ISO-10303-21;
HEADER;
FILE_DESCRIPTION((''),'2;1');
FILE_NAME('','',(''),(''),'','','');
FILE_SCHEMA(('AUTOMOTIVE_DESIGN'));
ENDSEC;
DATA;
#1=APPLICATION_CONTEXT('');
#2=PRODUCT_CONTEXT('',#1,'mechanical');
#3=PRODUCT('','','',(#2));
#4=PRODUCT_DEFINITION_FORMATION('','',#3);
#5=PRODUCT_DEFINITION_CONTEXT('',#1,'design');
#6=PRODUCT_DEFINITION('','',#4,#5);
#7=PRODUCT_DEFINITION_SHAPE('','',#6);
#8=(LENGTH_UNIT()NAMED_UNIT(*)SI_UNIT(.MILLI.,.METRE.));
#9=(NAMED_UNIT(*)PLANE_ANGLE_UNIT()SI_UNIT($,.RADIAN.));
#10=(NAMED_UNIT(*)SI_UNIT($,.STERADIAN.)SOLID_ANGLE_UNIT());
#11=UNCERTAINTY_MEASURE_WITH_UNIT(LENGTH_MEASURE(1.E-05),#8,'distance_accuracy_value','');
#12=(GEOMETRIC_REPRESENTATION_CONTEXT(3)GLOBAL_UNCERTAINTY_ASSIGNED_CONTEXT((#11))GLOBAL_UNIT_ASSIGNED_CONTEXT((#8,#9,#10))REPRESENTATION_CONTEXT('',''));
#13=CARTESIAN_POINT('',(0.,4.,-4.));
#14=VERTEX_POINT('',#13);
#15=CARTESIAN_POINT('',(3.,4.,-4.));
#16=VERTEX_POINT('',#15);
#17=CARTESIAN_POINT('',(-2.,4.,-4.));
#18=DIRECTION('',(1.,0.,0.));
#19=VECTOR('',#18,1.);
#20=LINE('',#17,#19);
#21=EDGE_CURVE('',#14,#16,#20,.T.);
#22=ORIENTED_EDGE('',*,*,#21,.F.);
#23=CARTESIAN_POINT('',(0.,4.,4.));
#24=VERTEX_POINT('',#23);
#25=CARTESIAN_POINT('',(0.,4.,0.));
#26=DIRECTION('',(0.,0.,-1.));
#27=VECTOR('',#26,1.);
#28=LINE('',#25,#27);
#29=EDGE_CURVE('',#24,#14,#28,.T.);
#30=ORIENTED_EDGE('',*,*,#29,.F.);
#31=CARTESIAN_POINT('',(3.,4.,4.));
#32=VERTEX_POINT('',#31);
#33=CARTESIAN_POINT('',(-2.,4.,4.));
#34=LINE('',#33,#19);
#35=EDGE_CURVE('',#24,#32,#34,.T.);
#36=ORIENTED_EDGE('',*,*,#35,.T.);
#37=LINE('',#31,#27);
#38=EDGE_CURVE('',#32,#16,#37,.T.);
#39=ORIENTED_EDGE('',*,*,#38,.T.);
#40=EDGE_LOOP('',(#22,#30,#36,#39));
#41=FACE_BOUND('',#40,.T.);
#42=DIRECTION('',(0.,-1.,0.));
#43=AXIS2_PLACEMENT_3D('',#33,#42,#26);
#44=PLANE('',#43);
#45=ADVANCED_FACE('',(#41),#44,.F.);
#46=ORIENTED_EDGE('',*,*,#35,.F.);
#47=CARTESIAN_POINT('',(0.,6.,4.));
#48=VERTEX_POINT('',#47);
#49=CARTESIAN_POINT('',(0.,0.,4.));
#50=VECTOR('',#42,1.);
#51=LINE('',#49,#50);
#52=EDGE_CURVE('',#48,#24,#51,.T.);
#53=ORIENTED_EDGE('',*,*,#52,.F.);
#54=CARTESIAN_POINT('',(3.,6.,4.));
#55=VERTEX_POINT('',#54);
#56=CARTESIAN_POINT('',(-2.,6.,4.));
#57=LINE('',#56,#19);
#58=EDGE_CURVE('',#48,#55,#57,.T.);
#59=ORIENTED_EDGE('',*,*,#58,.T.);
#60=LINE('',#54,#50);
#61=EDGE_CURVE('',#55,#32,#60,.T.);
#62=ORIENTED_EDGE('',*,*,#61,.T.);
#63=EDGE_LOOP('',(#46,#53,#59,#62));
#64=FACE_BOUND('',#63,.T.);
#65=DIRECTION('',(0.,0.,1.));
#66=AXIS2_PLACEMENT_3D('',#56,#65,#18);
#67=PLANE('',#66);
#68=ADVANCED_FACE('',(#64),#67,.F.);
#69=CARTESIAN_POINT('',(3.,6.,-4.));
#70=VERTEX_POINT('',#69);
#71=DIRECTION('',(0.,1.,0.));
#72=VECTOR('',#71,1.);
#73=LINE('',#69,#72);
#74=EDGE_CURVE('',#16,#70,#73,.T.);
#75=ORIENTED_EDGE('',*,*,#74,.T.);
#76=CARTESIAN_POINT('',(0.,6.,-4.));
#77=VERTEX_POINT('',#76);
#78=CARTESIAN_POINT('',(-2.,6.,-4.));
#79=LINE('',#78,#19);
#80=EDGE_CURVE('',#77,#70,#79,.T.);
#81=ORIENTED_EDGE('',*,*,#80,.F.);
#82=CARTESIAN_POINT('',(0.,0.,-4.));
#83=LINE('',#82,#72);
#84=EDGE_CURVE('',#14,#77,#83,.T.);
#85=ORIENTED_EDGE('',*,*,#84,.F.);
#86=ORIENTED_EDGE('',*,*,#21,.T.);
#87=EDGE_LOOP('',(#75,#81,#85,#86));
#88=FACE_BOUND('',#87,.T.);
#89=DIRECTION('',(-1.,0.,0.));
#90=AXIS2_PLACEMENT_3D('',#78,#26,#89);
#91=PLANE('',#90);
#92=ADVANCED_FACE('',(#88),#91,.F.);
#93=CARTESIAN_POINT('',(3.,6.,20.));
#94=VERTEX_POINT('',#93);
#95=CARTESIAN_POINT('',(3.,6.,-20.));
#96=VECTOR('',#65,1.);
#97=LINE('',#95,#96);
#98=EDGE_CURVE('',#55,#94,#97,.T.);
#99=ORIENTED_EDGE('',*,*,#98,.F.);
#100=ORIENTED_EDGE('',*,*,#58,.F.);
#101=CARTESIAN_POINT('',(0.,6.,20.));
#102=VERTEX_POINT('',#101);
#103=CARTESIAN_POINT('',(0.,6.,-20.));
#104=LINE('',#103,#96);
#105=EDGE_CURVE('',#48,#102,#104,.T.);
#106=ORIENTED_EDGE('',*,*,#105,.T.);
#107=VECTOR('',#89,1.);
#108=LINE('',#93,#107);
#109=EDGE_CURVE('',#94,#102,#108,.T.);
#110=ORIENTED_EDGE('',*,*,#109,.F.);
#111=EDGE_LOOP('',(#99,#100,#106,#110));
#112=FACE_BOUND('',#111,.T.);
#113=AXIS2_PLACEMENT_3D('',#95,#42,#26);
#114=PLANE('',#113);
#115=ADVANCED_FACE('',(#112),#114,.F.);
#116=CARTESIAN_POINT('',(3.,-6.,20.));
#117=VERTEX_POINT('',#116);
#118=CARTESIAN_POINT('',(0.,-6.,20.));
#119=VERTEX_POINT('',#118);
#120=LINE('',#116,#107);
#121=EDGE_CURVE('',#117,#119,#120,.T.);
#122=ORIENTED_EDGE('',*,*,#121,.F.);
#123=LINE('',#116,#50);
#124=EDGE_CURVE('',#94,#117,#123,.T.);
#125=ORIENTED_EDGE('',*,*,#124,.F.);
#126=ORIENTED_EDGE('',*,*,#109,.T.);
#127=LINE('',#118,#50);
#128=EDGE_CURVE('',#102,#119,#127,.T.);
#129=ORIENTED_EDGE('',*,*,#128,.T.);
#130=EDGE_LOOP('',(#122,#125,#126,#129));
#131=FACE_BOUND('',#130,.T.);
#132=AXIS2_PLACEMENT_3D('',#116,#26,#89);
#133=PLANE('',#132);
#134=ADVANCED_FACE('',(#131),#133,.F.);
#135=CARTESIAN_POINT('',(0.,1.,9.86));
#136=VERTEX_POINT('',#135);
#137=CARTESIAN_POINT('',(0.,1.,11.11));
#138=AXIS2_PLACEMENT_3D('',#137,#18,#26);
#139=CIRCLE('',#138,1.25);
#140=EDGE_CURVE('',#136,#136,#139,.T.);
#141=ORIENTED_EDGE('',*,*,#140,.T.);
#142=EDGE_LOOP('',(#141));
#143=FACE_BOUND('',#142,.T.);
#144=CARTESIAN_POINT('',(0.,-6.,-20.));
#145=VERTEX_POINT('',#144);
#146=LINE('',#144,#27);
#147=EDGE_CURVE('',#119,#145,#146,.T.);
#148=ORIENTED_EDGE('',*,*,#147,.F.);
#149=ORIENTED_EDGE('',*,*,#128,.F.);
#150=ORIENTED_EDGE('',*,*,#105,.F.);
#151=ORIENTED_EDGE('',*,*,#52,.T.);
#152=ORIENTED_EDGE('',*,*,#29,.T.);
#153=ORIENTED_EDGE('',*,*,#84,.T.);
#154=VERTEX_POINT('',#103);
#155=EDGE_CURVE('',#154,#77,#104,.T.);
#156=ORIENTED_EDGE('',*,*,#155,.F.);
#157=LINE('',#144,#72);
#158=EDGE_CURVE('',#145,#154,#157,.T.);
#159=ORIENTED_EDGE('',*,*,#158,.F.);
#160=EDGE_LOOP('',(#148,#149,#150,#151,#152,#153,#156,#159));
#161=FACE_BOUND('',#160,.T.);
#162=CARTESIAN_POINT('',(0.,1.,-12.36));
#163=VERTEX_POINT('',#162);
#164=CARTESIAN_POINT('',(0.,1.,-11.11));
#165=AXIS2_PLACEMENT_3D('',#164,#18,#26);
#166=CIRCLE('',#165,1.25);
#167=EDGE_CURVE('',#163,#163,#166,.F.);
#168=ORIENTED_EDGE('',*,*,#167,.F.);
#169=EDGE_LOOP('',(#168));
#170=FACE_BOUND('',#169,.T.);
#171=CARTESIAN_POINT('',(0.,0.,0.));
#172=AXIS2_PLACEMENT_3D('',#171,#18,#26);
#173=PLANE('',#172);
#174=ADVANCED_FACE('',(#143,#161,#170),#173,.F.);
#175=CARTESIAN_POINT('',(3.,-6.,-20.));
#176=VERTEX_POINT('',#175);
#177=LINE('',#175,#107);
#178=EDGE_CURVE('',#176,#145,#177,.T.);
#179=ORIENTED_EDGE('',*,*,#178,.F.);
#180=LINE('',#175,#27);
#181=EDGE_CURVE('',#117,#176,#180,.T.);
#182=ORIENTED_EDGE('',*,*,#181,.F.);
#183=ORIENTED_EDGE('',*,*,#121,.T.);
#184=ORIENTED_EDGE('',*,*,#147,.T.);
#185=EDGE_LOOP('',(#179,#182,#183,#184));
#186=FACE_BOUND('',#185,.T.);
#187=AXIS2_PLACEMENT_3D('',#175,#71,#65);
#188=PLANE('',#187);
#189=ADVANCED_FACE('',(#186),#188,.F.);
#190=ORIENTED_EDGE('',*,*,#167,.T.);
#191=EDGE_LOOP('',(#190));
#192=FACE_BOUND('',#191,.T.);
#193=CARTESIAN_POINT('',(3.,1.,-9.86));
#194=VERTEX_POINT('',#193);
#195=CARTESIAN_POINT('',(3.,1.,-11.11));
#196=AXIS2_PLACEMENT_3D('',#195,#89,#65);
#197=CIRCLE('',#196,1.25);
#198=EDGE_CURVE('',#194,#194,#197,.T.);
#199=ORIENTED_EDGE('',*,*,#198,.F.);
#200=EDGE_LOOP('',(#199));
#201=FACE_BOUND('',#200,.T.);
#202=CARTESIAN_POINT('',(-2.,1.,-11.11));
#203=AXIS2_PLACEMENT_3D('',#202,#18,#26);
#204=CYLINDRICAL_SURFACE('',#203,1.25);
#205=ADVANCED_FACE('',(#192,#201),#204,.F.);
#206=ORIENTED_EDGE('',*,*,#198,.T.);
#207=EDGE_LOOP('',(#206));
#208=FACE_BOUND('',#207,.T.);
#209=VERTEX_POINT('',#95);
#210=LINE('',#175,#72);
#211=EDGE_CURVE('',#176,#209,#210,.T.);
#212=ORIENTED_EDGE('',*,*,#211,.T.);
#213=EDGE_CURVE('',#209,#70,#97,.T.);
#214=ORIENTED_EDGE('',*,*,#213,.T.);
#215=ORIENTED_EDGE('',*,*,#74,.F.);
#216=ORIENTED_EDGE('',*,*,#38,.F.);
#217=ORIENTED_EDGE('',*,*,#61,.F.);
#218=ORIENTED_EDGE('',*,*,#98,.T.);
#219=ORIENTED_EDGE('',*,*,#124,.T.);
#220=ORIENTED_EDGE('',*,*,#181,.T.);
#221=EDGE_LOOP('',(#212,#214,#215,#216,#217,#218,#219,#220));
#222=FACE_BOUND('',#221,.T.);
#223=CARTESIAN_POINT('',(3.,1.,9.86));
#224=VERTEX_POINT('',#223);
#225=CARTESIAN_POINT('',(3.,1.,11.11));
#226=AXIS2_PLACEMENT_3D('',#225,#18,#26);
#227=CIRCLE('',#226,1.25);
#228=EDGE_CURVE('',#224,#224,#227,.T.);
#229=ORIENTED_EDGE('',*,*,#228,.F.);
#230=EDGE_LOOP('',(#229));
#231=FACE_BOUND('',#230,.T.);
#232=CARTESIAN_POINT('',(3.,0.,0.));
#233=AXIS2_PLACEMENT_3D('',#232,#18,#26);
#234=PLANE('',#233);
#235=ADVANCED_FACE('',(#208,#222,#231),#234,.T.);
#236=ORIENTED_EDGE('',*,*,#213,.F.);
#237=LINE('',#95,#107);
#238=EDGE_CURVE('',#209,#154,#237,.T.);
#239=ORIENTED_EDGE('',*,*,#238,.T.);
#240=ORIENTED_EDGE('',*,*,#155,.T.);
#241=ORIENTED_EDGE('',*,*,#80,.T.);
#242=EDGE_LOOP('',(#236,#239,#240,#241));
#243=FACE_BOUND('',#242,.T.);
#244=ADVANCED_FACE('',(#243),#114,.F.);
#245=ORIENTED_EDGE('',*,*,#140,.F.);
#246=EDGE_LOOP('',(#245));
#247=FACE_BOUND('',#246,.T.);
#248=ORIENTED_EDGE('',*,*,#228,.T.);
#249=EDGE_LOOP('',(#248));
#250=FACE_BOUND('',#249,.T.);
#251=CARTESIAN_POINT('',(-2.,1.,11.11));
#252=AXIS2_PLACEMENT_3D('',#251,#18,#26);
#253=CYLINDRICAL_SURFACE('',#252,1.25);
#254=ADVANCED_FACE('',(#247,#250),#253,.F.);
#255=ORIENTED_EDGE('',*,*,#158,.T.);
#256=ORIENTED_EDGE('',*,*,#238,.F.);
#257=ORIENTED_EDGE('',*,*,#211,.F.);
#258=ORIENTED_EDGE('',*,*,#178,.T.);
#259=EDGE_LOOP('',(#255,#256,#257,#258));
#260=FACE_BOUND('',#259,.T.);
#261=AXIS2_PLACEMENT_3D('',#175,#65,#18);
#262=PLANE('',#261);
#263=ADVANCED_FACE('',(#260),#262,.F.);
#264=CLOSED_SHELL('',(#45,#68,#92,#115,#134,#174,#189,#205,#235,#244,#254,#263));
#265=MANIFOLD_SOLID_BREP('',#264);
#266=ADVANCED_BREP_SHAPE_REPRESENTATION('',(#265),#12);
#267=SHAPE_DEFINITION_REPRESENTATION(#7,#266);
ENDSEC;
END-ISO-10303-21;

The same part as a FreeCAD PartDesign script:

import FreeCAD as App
import Part
import Sketcher
from FreeCAD import Vector

doc = App.newDocument("Part")
body = doc.addObject("PartDesign::Body", "Body")

sketch1 = doc.addObject("Sketcher::SketchObject", "Sketch")
body.addObject(sketch1)
sketch1.AttachmentSupport = (doc.YZ_Plane, [""])
sketch1.MapMode = "FlatFace"
sketch1.addGeometry(Part.LineSegment(Vector(6, 20, 0), Vector(-6, 20, 0)), False)
sketch1.addGeometry(Part.LineSegment(Vector(-6, 20, 0), Vector(-6, -20, 0)), False)
sketch1.addGeometry(Part.LineSegment(Vector(-6, -20, 0), Vector(6, -20, 0)), False)
sketch1.addGeometry(Part.LineSegment(Vector(6, -20, 0), Vector(6, 20, 0)), False)
sketch1.addConstraint(Sketcher.Constraint("Coincident", 0, 2, 1, 1))
sketch1.addConstraint(Sketcher.Constraint("Coincident", 1, 2, 2, 1))
sketch1.addConstraint(Sketcher.Constraint("Coincident", 2, 2, 3, 1))
sketch1.addConstraint(Sketcher.Constraint("Coincident", 3, 2, 0, 1))
sketch1.addConstraint(Sketcher.Constraint("Horizontal", 0))
sketch1.addConstraint(Sketcher.Constraint("Vertical", 1))
sketch1.addConstraint(Sketcher.Constraint("Horizontal", 2))
sketch1.addConstraint(Sketcher.Constraint("Vertical", 3))
sketch1.addConstraint(Sketcher.Constraint("Symmetric", 0, 2, 2, 2, -1, 1))
sketch1.addConstraint(Sketcher.Constraint("DistanceX", 0, 2, 0, 1, 12.0))
sketch1.addConstraint(Sketcher.Constraint("DistanceY", 1, 2, 1, 1, 40.0))
pad1 = doc.addObject("PartDesign::Pad", "Pad")
body.addObject(pad1)
pad1.Profile = sketch1
pad1.Length = 3

sketch2 = doc.addObject("Sketcher::SketchObject", "Sketch001")
body.addObject(sketch2)
sketch2.AttachmentSupport = (doc.YZ_Plane, [""])
sketch2.MapMode = "FlatFace"
sketch2.AttachmentOffset = App.Placement(Vector(0, 0, 3), App.Rotation())
sketch2.addGeometry(Part.Circle(Vector(1, 11.1, 0), Vector(0, 0, 1), 1.2), False)
sketch2.addGeometry(Part.LineSegment(Vector(6, 4, 0), Vector(4, 4, 0)), False)
sketch2.addGeometry(Part.LineSegment(Vector(4, 4, 0), Vector(4, -4, 0)), False)
sketch2.addGeometry(Part.LineSegment(Vector(4, -4, 0), Vector(6, -4, 0)), False)
sketch2.addGeometry(Part.LineSegment(Vector(6, -4, 0), Vector(6, 4, 0)), False)
sketch2.addConstraint(Sketcher.Constraint("Coincident", 1, 2, 2, 1))
sketch2.addConstraint(Sketcher.Constraint("Coincident", 2, 2, 3, 1))
sketch2.addConstraint(Sketcher.Constraint("Coincident", 3, 2, 4, 1))
sketch2.addConstraint(Sketcher.Constraint("Coincident", 4, 2, 1, 1))
sketch2.addConstraint(Sketcher.Constraint("Horizontal", 1))
sketch2.addConstraint(Sketcher.Constraint("Vertical", 2))
sketch2.addConstraint(Sketcher.Constraint("Horizontal", 3))
sketch2.addConstraint(Sketcher.Constraint("Vertical", 4))
sketch2.addConstraint(Sketcher.Constraint("Diameter", 0, 2.5))
sketch2.addConstraint(Sketcher.Constraint("DistanceX", 1, 2, 1, 1, 2.0))
sketch2.addConstraint(Sketcher.Constraint("DistanceY", 2, 2, 2, 1, 8.0))
sketch2.addConstraint(Sketcher.Constraint("DistanceX", -1, 1, 0, 3, 1.0))
sketch2.addConstraint(Sketcher.Constraint("DistanceX", -1, 1, 1, 2, 4.0))
sketch2.addConstraint(Sketcher.Constraint("DistanceY", -1, 1, 1, 2, 4.0))
sketch2.addConstraint(Sketcher.Constraint("DistanceY", -1, 1, 0, 3, 11.11))
pocket1 = doc.addObject("PartDesign::Pocket", "Pocket")
body.addObject(pocket1)
pocket1.Profile = sketch2
pocket1.Length = 5
doc.recompute()

mirrored = doc.addObject("PartDesign::Mirrored", "Mirrored")
body.addObject(mirrored)
mirrored.Originals = [pocket1]
mirrored.MirrorPlane = (doc.XY_Plane, [""])
body.Tip = mirrored

doc.recompute()
